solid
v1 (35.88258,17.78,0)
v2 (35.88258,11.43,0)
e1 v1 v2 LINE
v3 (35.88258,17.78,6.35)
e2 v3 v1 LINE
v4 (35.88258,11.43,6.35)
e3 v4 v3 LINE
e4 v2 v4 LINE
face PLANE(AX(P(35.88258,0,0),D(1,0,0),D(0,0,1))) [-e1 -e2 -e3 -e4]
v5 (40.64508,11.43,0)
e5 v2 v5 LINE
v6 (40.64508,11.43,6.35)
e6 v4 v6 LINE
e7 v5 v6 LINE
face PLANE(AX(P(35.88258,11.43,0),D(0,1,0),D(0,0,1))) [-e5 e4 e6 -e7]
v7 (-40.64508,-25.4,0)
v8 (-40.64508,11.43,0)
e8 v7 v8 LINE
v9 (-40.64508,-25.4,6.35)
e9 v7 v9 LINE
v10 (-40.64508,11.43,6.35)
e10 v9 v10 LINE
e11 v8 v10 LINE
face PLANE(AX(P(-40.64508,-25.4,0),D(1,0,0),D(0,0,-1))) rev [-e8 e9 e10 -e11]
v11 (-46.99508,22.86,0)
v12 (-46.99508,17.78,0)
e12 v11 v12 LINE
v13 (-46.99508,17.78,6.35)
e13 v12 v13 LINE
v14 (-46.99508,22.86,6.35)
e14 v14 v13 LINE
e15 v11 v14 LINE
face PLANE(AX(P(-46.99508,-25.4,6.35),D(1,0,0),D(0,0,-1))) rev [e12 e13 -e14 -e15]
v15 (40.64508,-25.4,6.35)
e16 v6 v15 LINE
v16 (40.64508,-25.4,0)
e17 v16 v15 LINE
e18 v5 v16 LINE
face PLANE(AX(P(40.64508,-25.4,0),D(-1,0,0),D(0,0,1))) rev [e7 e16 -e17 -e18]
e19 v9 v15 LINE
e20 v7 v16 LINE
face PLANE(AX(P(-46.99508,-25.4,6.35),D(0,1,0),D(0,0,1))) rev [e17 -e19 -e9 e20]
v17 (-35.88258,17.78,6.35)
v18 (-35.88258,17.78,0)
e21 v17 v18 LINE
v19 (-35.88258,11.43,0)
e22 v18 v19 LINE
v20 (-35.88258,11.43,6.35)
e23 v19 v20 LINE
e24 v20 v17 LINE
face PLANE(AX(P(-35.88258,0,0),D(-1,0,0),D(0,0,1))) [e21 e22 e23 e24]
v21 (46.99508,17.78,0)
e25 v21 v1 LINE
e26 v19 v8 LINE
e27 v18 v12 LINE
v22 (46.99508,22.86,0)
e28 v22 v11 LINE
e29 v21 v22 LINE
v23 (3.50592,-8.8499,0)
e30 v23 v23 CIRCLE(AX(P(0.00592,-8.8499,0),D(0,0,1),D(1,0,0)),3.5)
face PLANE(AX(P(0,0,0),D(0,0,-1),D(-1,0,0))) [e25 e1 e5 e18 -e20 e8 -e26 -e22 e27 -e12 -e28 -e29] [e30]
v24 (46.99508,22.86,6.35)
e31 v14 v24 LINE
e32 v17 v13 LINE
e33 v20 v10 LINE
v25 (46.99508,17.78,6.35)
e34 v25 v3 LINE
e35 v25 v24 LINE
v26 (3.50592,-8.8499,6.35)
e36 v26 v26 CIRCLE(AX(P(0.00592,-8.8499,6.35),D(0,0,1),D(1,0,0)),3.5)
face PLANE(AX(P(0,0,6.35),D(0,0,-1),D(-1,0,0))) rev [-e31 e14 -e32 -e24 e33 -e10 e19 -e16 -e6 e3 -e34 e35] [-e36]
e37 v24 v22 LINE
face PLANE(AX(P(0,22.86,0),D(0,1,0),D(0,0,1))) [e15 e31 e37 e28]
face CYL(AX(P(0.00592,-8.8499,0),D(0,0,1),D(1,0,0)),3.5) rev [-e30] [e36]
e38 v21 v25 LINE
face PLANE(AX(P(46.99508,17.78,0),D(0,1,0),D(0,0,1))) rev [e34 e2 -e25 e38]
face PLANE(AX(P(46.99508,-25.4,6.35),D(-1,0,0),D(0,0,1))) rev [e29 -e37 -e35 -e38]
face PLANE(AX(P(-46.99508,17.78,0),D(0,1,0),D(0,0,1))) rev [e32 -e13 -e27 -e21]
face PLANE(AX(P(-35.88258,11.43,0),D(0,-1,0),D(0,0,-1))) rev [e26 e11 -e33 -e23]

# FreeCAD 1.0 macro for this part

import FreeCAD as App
import Part
import Sketcher
Q = App.Units.Quantity

doc = App.newDocument("Part")
body = doc.addObject("PartDesign::Body", "Body")

# Sketch on XY plane
sketch1 = body.newObject("Sketcher::SketchObject", "Sketch")
sketch1.AttachmentSupport = (doc.getObject("XY_Plane"), [""])
sketch1.MapMode = "FlatFace"
sketch1.addGeometry(Part.LineSegment(App.Vector(-47, 25, 0), App.Vector(-47, -25, 0)), False)
sketch1.addGeometry(Part.LineSegment(App.Vector(-47, -25, 0), App.Vector(47, -25, 0)), False)
sketch1.addGeometry(Part.LineSegment(App.Vector(47, -25, 0), App.Vector(47, 25, 0)), False)
sketch1.addGeometry(Part.LineSegment(App.Vector(47, 25, 0), App.Vector(-47, 25, 0)), False)
sketch1.addConstraint(Sketcher.Constraint("Coincident", 0, 2, 1, 1))
sketch1.addConstraint(Sketcher.Constraint("Coincident", 1, 2, 2, 1))
sketch1.addConstraint(Sketcher.Constraint("Coincident", 2, 2, 3, 1))
sketch1.addConstraint(Sketcher.Constraint("Coincident", 3, 2, 0, 1))
sketch1.addConstraint(Sketcher.Constraint("Vertical", 0))
sketch1.addConstraint(Sketcher.Constraint("Horizontal", 1))
sketch1.addConstraint(Sketcher.Constraint("Vertical", 2))
sketch1.addConstraint(Sketcher.Constraint("Horizontal", 3))
sketch1.addConstraint(Sketcher.Constraint("Symmetric", 0, 2, 2, 2, -1, 1))
sketch1.addConstraint(Sketcher.Constraint("DistanceY", 0, 2, 0, 1, Q("2 in")))
sketch1.addConstraint(Sketcher.Constraint("DistanceX", 1, 1, 1, 2, Q("3.7004 in")))
pad1 = body.newObject("PartDesign::Pad", "Pad")
pad1.Profile = sketch1
pad1.Length = Q("0.25 in")

# Sketch on XY plane
sketch2 = body.newObject("Sketcher::SketchObject", "Sketch001")
sketch2.AttachmentSupport = (doc.getObject("XY_Plane"), [""])
sketch2.MapMode = "FlatFace"
sketch2.AttachmentOffset = App.Placement(App.Vector(0, 0, 0.25 * 25.4), App.Rotation())
sketch2.addGeometry(Part.LineSegment(App.Vector(-47, 18, 0), App.Vector(-47, -25, 0)), False)
sketch2.addGeometry(Part.LineSegment(App.Vector(-47, -25, 0), App.Vector(-41, -25, 0)), False)
sketch2.addGeometry(Part.LineSegment(App.Vector(-41, -25, 0), App.Vector(-41, 18, 0)), False)
sketch2.addGeometry(Part.LineSegment(App.Vector(-41, 18, 0), App.Vector(-47, 18, 0)), False)
sketch2.addGeometry(Part.LineSegment(App.Vector(41, 18, 0), App.Vector(41, -25, 0)), False)
sketch2.addGeometry(Part.LineSegment(App.Vector(41, -25, 0), App.Vector(47, -25, 0)), False)
sketch2.addGeometry(Part.LineSegment(App.Vector(47, -25, 0), App.Vector(47, 18, 0)), False)
sketch2.addGeometry(Part.LineSegment(App.Vector(47, 18, 0), App.Vector(41, 18, 0)), False)
sketch2.addConstraint(Sketcher.Constraint("Coincident", 0, 2, 1, 1))
sketch2.addConstraint(Sketcher.Constraint("Coincident", 1, 2, 2, 1))
sketch2.addConstraint(Sketcher.Constraint("Coincident", 2, 2, 3, 1))
sketch2.addConstraint(Sketcher.Constraint("Coincident", 3, 2, 0, 1))
sketch2.addConstraint(Sketcher.Constraint("Coincident", 4, 2, 5, 1))
sketch2.addConstraint(Sketcher.Constraint("Coincident", 5, 2, 6, 1))
sketch2.addConstraint(Sketcher.Constraint("Coincident", 6, 2, 7, 1))
sketch2.addConstraint(Sketcher.Constraint("Coincident", 7, 2, 4, 1))
sketch2.addConstraint(Sketcher.Constraint("Vertical", 0))
sketch2.addConstraint(Sketcher.Constraint("Horizontal", 1))
sketch2.addConstraint(Sketcher.Constraint("Vertical", 2))
sketch2.addConstraint(Sketcher.Constraint("Horizontal", 3))
sketch2.addConstraint(Sketcher.Constraint("Vertical", 4))
sketch2.addConstraint(Sketcher.Constraint("Horizontal", 5))
sketch2.addConstraint(Sketcher.Constraint("Vertical", 6))
sketch2.addConstraint(Sketcher.Constraint("Horizontal", 7))
sketch2.addConstraint(Sketcher.Constraint("Symmetric", 1, 2, 4, 2, -2))
sketch2.addConstraint(Sketcher.Constraint("Symmetric", 3, 2, 6, 2, -2))
sketch2.addConstraint(Sketcher.Constraint("DistanceY", 0, 2, 0, 1, Q("1.7 in")))
sketch2.addConstraint(Sketcher.Constraint("DistanceY", 0, 2, -1, 1, Q("1 in")))
sketch2.addConstraint(Sketcher.Constraint("DistanceX", 1, 1, 1, 2, Q("0.25 in")))
sketch2.addConstraint(Sketcher.Constraint("DistanceX", 0, 2, -1, 1, Q("1.8502 in")))
pocket1 = body.newObject("PartDesign::Pocket", "Pocket")
pocket1.Profile = sketch2
pocket1.Length = Q("0.25 in")

# Sketch on XZ plane
sketch3 = body.newObject("Sketcher::SketchObject", "Sketch002")
sketch3.AttachmentSupport = (doc.getObject("XZ_Plane"), [""])
sketch3.MapMode = "FlatFace"
sketch3.AttachmentOffset = App.Placement(App.Vector(0, 0, -1 * 25.4), App.Rotation())
sketch3.addGeometry(Part.LineSegment(App.Vector(-47, 0, 0), App.Vector(-47, 6, 0)), False)
sketch3.addGeometry(Part.LineSegment(App.Vector(-47, 6, 0), App.Vector(47, 6, 0)), False)
sketch3.addGeometry(Part.LineSegment(App.Vector(47, 6, 0), App.Vector(47, 0, 0)), False)
sketch3.addGeometry(Part.LineSegment(App.Vector(47, 0, 0), App.Vector(-47, 0, 0)), False)
sketch3.addConstraint(Sketcher.Constraint("Coincident", 0, 2, 1, 1))
sketch3.addConstraint(Sketcher.Constraint("Coincident", 1, 2, 2, 1))
sketch3.addConstraint(Sketcher.Constraint("Coincident", 2, 2, 3, 1))
sketch3.addConstraint(Sketcher.Constraint("Coincident", 3, 2, 0, 1))
sketch3.addConstraint(Sketcher.Constraint("Vertical", 0))
sketch3.addConstraint(Sketcher.Constraint("Horizontal", 1))
sketch3.addConstraint(Sketcher.Constraint("Vertical", 2))
sketch3.addConstraint(Sketcher.Constraint("Horizontal", 3))
sketch3.addConstraint(Sketcher.Constraint("Symmetric", 2, 2, 3, 2, -1, 1))
sketch3.addConstraint(Sketcher.Constraint("DistanceY", 0, 1, 0, 2, Q("0.25 in")))
sketch3.addConstraint(Sketcher.Constraint("DistanceX", 1, 1, 1, 2, Q("3.7004 in")))
pocket2 = body.newObject("PartDesign::Pocket", "Pocket001")
pocket2.Profile = sketch3
pocket2.Length = Q("0.1 in")
pocket2.Reversed = True

# Sketch on YZ plane
sketch4 = body.newObject("Sketcher::SketchObject", "Sketch003")
sketch4.AttachmentSupport = (doc.getObject("YZ_Plane"), [""])
sketch4.MapMode = "FlatFace"
sketch4.AttachmentOffset = App.Placement(App.Vector(0, 0, -1.6002 * 25.4), App.Rotation())
sketch4.addGeometry(Part.LineSegment(App.Vector(18, 0, 0), App.Vector(11, 0, 0)), False)
sketch4.addGeometry(Part.LineSegment(App.Vector(11, 0, 0), App.Vector(11, 6, 0)), False)
sketch4.addGeometry(Part.LineSegment(App.Vector(11, 6, 0), App.Vector(18, 6, 0)), False)
sketch4.addGeometry(Part.LineSegment(App.Vector(18, 6, 0), App.Vector(18, 0, 0)), False)
sketch4.addConstraint(Sketcher.Constraint("Coincident", 0, 2, 1, 1))
sketch4.addConstraint(Sketcher.Constraint("Coincident", 1, 2, 2, 1))
sketch4.addConstraint(Sketcher.Constraint("Coincident", 2, 2, 3, 1))
sketch4.addConstraint(Sketcher.Constraint("Coincident", 3, 2, 0, 1))
sketch4.addConstraint(Sketcher.Constraint("Horizontal", 0))
sketch4.addConstraint(Sketcher.Constraint("Vertical", 1))
sketch4.addConstraint(Sketcher.Constraint("Horizontal", 2))
sketch4.addConstraint(Sketcher.Constraint("Vertical", 3))
sketch4.addConstraint(Sketcher.Constraint("PointOnObject", 0, 2, -1))
sketch4.addConstraint(Sketcher.Constraint("Equal", 2, 1))
sketch4.addConstraint(Sketcher.Constraint("DistanceX", 0, 2, 0, 1, Q("0.25 in")))
sketch4.addConstraint(Sketcher.Constraint("DistanceX", -1, 1, 2, 2, Q("0.7 in")))
pocket3 = body.newObject("PartDesign::Pocket", "Pocket002")
pocket3.Profile = sketch4
pocket3.Length = Q("0.1875 in")
pocket3.Reversed = True
doc.recompute()

mirrored = body.newObject("PartDesign::Mirrored", "Mirrored")
mirrored.Originals = [pocket3]
mirrored.MirrorPlane = (doc.getObject("YZ_Plane"), [""])
body.Tip = mirrored

# Sketch on XY plane
sketch5 = body.newObject("Sketcher::SketchObject", "Sketch004")
sketch5.AttachmentSupport = (doc.getObject("XY_Plane"), [""])
sketch5.MapMode = "FlatFace"
sketch5.AttachmentOffset = App.Placement(App.Vector(0, 0, 0.25 * 25.4), App.Rotation())
sketch5.addGeometry(Part.Circle(App.Vector(0, -8.8, 0), App.Vector(0, 0, 1), 3.5), False)
sketch5.addConstraint(Sketcher.Constraint("Diameter", 0, Q("7 mm")))
sketch5.addConstraint(Sketcher.Constraint("DistanceY", 0, 3, -1, 1, Q("8.8499 mm")))
sketch5.addConstraint(Sketcher.Constraint("DistanceX", -1, 1, 0, 3, Q("0.00592 mm")))
pocket4 = body.newObject("PartDesign::Pocket", "Pocket003")
pocket4.Profile = sketch5
pocket4.Length = Q("0.25 in")

doc.recompute()
